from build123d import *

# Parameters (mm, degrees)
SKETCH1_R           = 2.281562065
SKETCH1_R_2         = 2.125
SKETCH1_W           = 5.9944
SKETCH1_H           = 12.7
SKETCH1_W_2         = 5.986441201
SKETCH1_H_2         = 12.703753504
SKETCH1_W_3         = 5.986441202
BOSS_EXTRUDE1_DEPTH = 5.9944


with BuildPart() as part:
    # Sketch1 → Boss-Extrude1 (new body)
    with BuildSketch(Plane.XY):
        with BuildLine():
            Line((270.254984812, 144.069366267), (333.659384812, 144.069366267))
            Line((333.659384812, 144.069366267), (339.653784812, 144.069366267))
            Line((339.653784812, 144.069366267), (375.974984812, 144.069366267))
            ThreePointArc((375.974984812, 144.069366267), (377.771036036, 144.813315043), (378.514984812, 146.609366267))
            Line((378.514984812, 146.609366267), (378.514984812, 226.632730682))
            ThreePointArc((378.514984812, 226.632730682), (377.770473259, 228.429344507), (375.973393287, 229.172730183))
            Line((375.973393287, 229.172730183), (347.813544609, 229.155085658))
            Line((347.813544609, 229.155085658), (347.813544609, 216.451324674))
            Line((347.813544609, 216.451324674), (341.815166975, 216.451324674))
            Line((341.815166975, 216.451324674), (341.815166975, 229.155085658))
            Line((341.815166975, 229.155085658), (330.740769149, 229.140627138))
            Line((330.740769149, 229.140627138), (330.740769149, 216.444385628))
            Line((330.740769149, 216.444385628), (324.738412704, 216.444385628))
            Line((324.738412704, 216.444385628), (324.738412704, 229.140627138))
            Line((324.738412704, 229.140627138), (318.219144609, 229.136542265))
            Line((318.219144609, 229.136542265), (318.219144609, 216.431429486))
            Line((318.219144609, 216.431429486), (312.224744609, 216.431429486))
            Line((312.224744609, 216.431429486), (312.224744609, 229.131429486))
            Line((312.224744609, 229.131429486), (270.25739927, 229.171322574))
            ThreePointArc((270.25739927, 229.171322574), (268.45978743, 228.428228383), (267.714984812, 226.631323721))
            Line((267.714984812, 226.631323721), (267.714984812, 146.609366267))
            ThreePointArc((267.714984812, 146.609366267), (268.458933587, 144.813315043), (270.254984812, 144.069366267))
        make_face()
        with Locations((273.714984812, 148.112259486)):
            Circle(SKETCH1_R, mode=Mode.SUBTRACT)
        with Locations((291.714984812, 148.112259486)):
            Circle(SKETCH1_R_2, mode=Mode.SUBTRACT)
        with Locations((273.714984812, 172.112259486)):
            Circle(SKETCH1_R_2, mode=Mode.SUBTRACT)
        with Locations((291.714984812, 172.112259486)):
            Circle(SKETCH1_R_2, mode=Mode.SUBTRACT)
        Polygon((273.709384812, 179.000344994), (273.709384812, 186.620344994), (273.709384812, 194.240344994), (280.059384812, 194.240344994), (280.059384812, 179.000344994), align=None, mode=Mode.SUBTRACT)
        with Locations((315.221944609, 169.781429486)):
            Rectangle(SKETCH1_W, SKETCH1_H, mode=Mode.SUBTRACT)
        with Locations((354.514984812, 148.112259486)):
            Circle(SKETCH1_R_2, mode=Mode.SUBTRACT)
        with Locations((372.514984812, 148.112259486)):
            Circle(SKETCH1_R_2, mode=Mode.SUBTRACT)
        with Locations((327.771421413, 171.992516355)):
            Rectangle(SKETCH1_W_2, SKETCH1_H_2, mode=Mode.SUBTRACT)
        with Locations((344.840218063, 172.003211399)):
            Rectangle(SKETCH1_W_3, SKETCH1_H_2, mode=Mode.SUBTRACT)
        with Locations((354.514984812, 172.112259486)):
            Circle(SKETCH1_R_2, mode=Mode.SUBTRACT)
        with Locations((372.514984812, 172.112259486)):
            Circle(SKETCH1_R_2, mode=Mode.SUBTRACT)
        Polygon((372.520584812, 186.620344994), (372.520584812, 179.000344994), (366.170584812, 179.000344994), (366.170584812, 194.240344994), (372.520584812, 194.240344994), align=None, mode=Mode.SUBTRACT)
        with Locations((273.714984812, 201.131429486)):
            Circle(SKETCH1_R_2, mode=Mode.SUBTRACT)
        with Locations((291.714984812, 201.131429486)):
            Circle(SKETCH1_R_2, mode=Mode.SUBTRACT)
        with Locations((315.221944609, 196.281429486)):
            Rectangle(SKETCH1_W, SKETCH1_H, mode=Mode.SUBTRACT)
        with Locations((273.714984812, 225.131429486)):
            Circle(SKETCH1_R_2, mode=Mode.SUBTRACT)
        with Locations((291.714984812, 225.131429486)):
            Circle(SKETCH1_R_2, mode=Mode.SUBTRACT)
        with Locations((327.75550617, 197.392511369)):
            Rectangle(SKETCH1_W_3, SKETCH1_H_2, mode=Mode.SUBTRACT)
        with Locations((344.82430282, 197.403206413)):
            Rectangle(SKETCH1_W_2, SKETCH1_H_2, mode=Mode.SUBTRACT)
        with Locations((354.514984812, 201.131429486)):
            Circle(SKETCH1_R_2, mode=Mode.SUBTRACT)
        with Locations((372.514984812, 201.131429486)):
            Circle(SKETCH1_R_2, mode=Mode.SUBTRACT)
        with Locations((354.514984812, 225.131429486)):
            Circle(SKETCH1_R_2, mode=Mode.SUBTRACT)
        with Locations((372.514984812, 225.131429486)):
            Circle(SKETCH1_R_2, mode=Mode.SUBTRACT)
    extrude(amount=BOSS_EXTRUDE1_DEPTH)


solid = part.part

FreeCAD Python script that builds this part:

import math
import FreeCAD as App
import Part
import Sketcher
from FreeCAD import Vector
Q = App.Units.Quantity


def add_polygon(sketch, points):
    """Adds a closed chain of lines whose ends are joined by coincident constraints."""
    first, n = sketch.GeometryCount, len(points)
    for a, b in zip(points, points[1:] + points[:1]):
        sketch.addGeometry(Part.LineSegment(App.Vector(*a, 0), App.Vector(*b, 0)), False)
    for i in range(n):
        sketch.addConstraint(Sketcher.Constraint("Coincident", first + i, 2, first + (i + 1) % n, 1))

doc = App.newDocument("Part")
body = doc.addObject("PartDesign::Body", "Body")

sketch1 = doc.addObject("Sketcher::SketchObject", "Sketch")
body.addObject(sketch1)
sketch1.AttachmentSupport = (doc.XY_Plane, [""])
sketch1.MapMode = "FlatFace"
sketch1.addGeometry(Part.LineSegment(Vector(270.254985, 144.069366, 0), Vector(375.974985, 144.069366, 0)), False)
sketch1.addGeometry(Part.ArcOfCircle(Part.Circle(Vector(375.974985, 146.609366, 0), Vector(0, 0, 1), 2.54), math.radians(-90), math.radians(0)), False)
sketch1.addGeometry(Part.LineSegment(Vector(378.514985, 146.609366, 0), Vector(378.514985, 226.632731, 0)), False)
sketch1.addGeometry(Part.ArcOfCircle(Part.Circle(Vector(375.974985, 226.632731, 0), Vector(0, 0, 1), 2.54), math.radians(0), math.radians(90.035901)), False)
sketch1.addGeometry(Part.LineSegment(Vector(375.973393, 229.17273, 0), Vector(347.813545, 229.155086, 0)), False)
sketch1.addGeometry(Part.LineSegment(Vector(347.813545, 229.155086, 0), Vector(347.813545, 216.451325, 0)), False)
sketch1.addGeometry(Part.LineSegment(Vector(347.813545, 216.451325, 0), Vector(341.815167, 216.451325, 0)), False)
sketch1.addGeometry(Part.LineSegment(Vector(341.815167, 216.451325, 0), Vector(341.815167, 229.155086, 0)), False)
sketch1.addGeometry(Part.LineSegment(Vector(341.815167, 229.155086, 0), Vector(330.740769, 229.140627, 0)), False)
sketch1.addGeometry(Part.LineSegment(Vector(330.740769, 229.140627, 0), Vector(330.740769, 216.444386, 0)), False)
sketch1.addGeometry(Part.LineSegment(Vector(330.740769, 216.444386, 0), Vector(324.738413, 216.444386, 0)), False)
sketch1.addGeometry(Part.LineSegment(Vector(324.738413, 216.444386, 0), Vector(324.738413, 229.140627, 0)), False)
sketch1.addGeometry(Part.LineSegment(Vector(324.738413, 229.140627, 0), Vector(318.219145, 229.136542, 0)), False)
sketch1.addGeometry(Part.LineSegment(Vector(318.219145, 229.136542, 0), Vector(318.219145, 216.431429, 0)), False)
sketch1.addGeometry(Part.LineSegment(Vector(318.219145, 216.431429, 0), Vector(312.224745, 216.431429, 0)), False)
sketch1.addGeometry(Part.LineSegment(Vector(312.224745, 216.431429, 0), Vector(312.224745, 229.131429, 0)), False)
sketch1.addGeometry(Part.LineSegment(Vector(312.224745, 229.131429, 0), Vector(270.257399, 229.171323, 0)), False)
sketch1.addGeometry(Part.ArcOfCircle(Part.Circle(Vector(270.254985, 226.631324, 0), Vector(0, 0, 1), 2.54), math.radians(89.945536), math.radians(180)), False)
sketch1.addGeometry(Part.LineSegment(Vector(267.714985, 226.631324, 0), Vector(267.714985, 146.609366, 0)), False)
sketch1.addGeometry(Part.ArcOfCircle(Part.Circle(Vector(270.254985, 146.609366, 0), Vector(0, 0, 1), 2.54), math.radians(180), math.radians(270)), False)
sketch1.addGeometry(Part.Circle(Vector(273.714985, 148.112259, 0), Vector(0, 0, 1), 2.281562), False)
sketch1.addGeometry(Part.Circle(Vector(291.714985, 148.112259, 0), Vector(0, 0, 1), 2.125), False)
sketch1.addGeometry(Part.Circle(Vector(273.714985, 172.112259, 0), Vector(0, 0, 1), 2.125), False)
sketch1.addGeometry(Part.Circle(Vector(291.714985, 172.112259, 0), Vector(0, 0, 1), 2.125), False)
add_polygon(sketch1, [(318.219145, 163.431429), (312.224745, 163.431429), (312.224745, 176.131429), (318.219145, 176.131429)])
sketch1.addGeometry(Part.Circle(Vector(354.514985, 148.112259, 0), Vector(0, 0, 1), 2.125), False)
sketch1.addGeometry(Part.Circle(Vector(372.514985, 148.112259, 0), Vector(0, 0, 1), 2.125), False)
add_polygon(sketch1, [(330.764642, 165.64064), (324.778201, 165.64064), (324.778201, 178.344393), (330.764642, 178.344393)])
add_polygon(sketch1, [(347.833439, 165.651335), (341.846997, 165.651335), (341.846997, 178.355088), (347.833439, 178.355088)])
sketch1.addGeometry(Part.Circle(Vector(354.514985, 172.112259, 0), Vector(0, 0, 1), 2.125), False)
sketch1.addGeometry(Part.Circle(Vector(372.514985, 172.112259, 0), Vector(0, 0, 1), 2.125), False)
add_polygon(sketch1, [(280.059385, 179.000345), (273.709385, 179.000345), (273.709385, 194.240345), (280.059385, 194.240345)])
sketch1.addGeometry(Part.Circle(Vector(273.714985, 201.131429, 0), Vector(0, 0, 1), 2.125), False)
sketch1.addGeometry(Part.Circle(Vector(291.714985, 201.131429, 0), Vector(0, 0, 1), 2.125), False)
add_polygon(sketch1, [(318.219145, 189.931429), (312.224745, 189.931429), (312.224745, 202.631429), (318.219145, 202.631429)])
sketch1.addGeometry(Part.Circle(Vector(273.714985, 225.131429, 0), Vector(0, 0, 1), 2.125), False)
sketch1.addGeometry(Part.Circle(Vector(291.714985, 225.131429, 0), Vector(0, 0, 1), 2.125), False)
add_polygon(sketch1, [(330.748727, 191.040635), (324.762286, 191.040635), (324.762286, 203.744388), (330.748727, 203.744388)])
add_polygon(sketch1, [(347.817523, 191.05133), (341.831082, 191.05133), (341.831082, 203.755083), (347.817523, 203.755083)])
add_polygon(sketch1, [(372.520585, 194.240345), (372.520585, 179.000345), (366.170585, 179.000345), (366.170585, 194.240345)])
sketch1.addGeometry(Part.Circle(Vector(354.514985, 201.131429, 0), Vector(0, 0, 1), 2.125), False)
sketch1.addGeometry(Part.Circle(Vector(372.514985, 201.131429, 0), Vector(0, 0, 1), 2.125), False)
sketch1.addGeometry(Part.Circle(Vector(354.514985, 225.131429, 0), Vector(0, 0, 1), 2.125), False)
sketch1.addGeometry(Part.Circle(Vector(372.514985, 225.131429, 0), Vector(0, 0, 1), 2.125), False)
sketch1.addConstraint([
    Sketcher.Constraint("Tangent", 0, 2, 1, 1),
    Sketcher.Constraint("Tangent", 1, 2, 2, 1),
    Sketcher.Constraint("Tangent", 2, 2, 3, 1),
    Sketcher.Constraint("Tangent", 3, 2, 4, 1),
    Sketcher.Constraint("Coincident", 4, 2, 5, 1),
    Sketcher.Constraint("Coincident", 5, 2, 6, 1),
    Sketcher.Constraint("Coincident", 6, 2, 7, 1),
    Sketcher.Constraint("Coincident", 7, 2, 8, 1),
    Sketcher.Constraint("Coincident", 8, 2, 9, 1),
    Sketcher.Constraint("Coincident", 9, 2, 10, 1),
    Sketcher.Constraint("Coincident", 10, 2, 11, 1),
    Sketcher.Constraint("Coincident", 11, 2, 12, 1),
    Sketcher.Constraint("Coincident", 12, 2, 13, 1),
    Sketcher.Constraint("Coincident", 13, 2, 14, 1),
    Sketcher.Constraint("Coincident", 14, 2, 15, 1),
    Sketcher.Constraint("Coincident", 15, 2, 16, 1),
    Sketcher.Constraint("Tangent", 16, 2, 17, 1),
    Sketcher.Constraint("Tangent", 17, 2, 18, 1),
    Sketcher.Constraint("Tangent", 18, 2, 19, 1),
    Sketcher.Constraint("Tangent", 19, 2, 0, 1),
    Sketcher.Constraint("Horizontal", 0),
    Sketcher.Constraint("Vertical", 2),
    Sketcher.Constraint("Vertical", 5),
    Sketcher.Constraint("Horizontal", 6),
    Sketcher.Constraint("Vertical", 7),
    Sketcher.Constraint("Vertical", 9),
    Sketcher.Constraint("Horizontal", 10),
    Sketcher.Constraint("Vertical", 11),
    Sketcher.Constraint("Vertical", 13),
    Sketcher.Constraint("Horizontal", 14),
    Sketcher.Constraint("Vertical", 15),
    Sketcher.Constraint("Vertical", 18),
    Sketcher.Constraint("Horizontal", 24),
    Sketcher.Constraint("Vertical", 25),
    Sketcher.Constraint("Horizontal", 26),
    Sketcher.Constraint("Vertical", 27),
    Sketcher.Constraint("Horizontal", 30),
    Sketcher.Constraint("Vertical", 31),
    Sketcher.Constraint("Horizontal", 32),
    Sketcher.Constraint("Vertical", 33),
    Sketcher.Constraint("Horizontal", 34),
    Sketcher.Constraint("Vertical", 35),
    Sketcher.Constraint("Horizontal", 36),
    Sketcher.Constraint("Vertical", 37),
    Sketcher.Constraint("Horizontal", 40),
    Sketcher.Constraint("Vertical", 41),
    Sketcher.Constraint("Horizontal", 42),
    Sketcher.Constraint("Vertical", 43),
    Sketcher.Constraint("Horizontal", 46),
    Sketcher.Constraint("Vertical", 47),
    Sketcher.Constraint("Horizontal", 48),
    Sketcher.Constraint("Vertical", 49),
    Sketcher.Constraint("Horizontal", 52),
    Sketcher.Constraint("Vertical", 53),
    Sketcher.Constraint("Horizontal", 54),
    Sketcher.Constraint("Vertical", 55),
    Sketcher.Constraint("Horizontal", 56),
    Sketcher.Constraint("Vertical", 57),
    Sketcher.Constraint("Horizontal", 58),
    Sketcher.Constraint("Vertical", 59),
    Sketcher.Constraint("Vertical", 60),
    Sketcher.Constraint("Horizontal", 61),
    Sketcher.Constraint("Vertical", 62),
    Sketcher.Constraint("Horizontal", 63),
    Sketcher.Constraint("Equal", 1, 3),
    Sketcher.Constraint("Equal", 3, 17),
    Sketcher.Constraint("Equal", 17, 19),
    Sketcher.Constraint("Equal", 21, 22),
    Sketcher.Constraint("Equal", 22, 23),
    Sketcher.Constraint("Equal", 23, 28),
    Sketcher.Constraint("Equal", 28, 29),
    Sketcher.Constraint("Equal", 29, 38),
    Sketcher.Constraint("Equal", 38, 39),
    Sketcher.Constraint("Equal", 39, 44),
    Sketcher.Constraint("Equal", 44, 45),
    Sketcher.Constraint("Equal", 45, 50),
    Sketcher.Constraint("Equal", 50, 51),
    Sketcher.Constraint("Equal", 51, 64),
    Sketcher.Constraint("Equal", 64, 65),
    Sketcher.Constraint("Equal", 65, 66),
    Sketcher.Constraint("Equal", 66, 67),
    Sketcher.Constraint("Parallel", 4, 12),
    Sketcher.Constraint("Horizontal", 20, 3, 21, 3),
    Sketcher.Constraint("Horizontal", 22, 3, 23, 3),
    Sketcher.Constraint("Horizontal", 21, 3, 28, 3),
    Sketcher.Constraint("Horizontal", 28, 3, 29, 3),
    Sketcher.Constraint("Horizontal", 23, 3, 38, 3),
    Sketcher.Constraint("Horizontal", 38, 3, 39, 3),
    Sketcher.Constraint("Horizontal", 44, 3, 45, 3),
    Sketcher.Constraint("Horizontal", 50, 3, 51, 3),
    Sketcher.Constraint("Horizontal", 45, 3, 64, 3),
    Sketcher.Constraint("Horizontal", 64, 3, 65, 3),
    Sketcher.Constraint("Horizontal", 51, 3, 66, 3),
    Sketcher.Constraint("Horizontal", 66, 3, 67, 3),
    Sketcher.Constraint("Horizontal", 4, 2, 7, 2),
    Sketcher.Constraint("Horizontal", 8, 2, 11, 2),
    Sketcher.Constraint("Horizontal", 43, 2, 60, 2),
    Sketcher.Constraint("Horizontal", 42, 2, 62, 2),
    Sketcher.Constraint("Vertical", 20, 3, 22, 3),
    Sketcher.Constraint("Vertical", 21, 3, 23, 3),
    Sketcher.Constraint("Vertical", 28, 3, 38, 3),
    Sketcher.Constraint("Vertical", 29, 3, 39, 3),
    Sketcher.Constraint("Vertical", 22, 3, 44, 3),
    Sketcher.Constraint("Vertical", 23, 3, 45, 3),
    Sketcher.Constraint("Vertical", 44, 3, 50, 3),
    Sketcher.Constraint("Vertical", 45, 3, 51, 3),
    Sketcher.Constraint("Vertical", 38, 3, 64, 3),
    Sketcher.Constraint("Vertical", 39, 3, 65, 3),
    Sketcher.Constraint("Vertical", 64, 3, 66, 3),
    Sketcher.Constraint("Vertical", 65, 3, 67, 3),
    Sketcher.Constraint("Vertical", 15, 2, 24, 2),
    Sketcher.Constraint("Vertical", 13, 2, 26, 2),
    Sketcher.Constraint("Vertical", 25, 2, 46, 2),
    Sketcher.Constraint("Vertical", 27, 2, 48, 2),
    Sketcher.Constraint("Equal", 32, 34),
    Sketcher.Constraint("Equal", 36, 52),
    Sketcher.Constraint("Equal", 54, 56),
    Sketcher.Constraint("Equal", 42, 61),
    Sketcher.Constraint("Equal", 15, 25),
    Sketcher.Constraint("Equal", 33, 35),
    Sketcher.Constraint("Equal", 27, 47),
    Sketcher.Constraint("Equal", 37, 53),
    Sketcher.Constraint("Equal", 55, 57),
    Sketcher.Constraint("Radius", 1, Q("0.1 in")),
    Sketcher.Constraint("DistanceY", 15, 1, 15, 2, Q("0.5 in")),
    Sketcher.Constraint("DistanceY", 41, 1, 41, 2, Q("0.6 in")),
    Sketcher.Constraint("DistanceX", 40, 2, 40, 1, Q("0.25 in")),
    Sketcher.Constraint("Diameter", 21, Q("4.25 mm")),
    Sketcher.Constraint("DistanceX", 14, 2, 14, 1, Q("0.236 in")),
    Sketcher.Constraint("Diameter", 20, Q("4.563124 mm")),
    Sketcher.Constraint("DistanceX", 0, 1, 0, 2, Q("105.72 mm")),
    Sketcher.Constraint("DistanceX", 30, 2, 30, 1, Q("5.986441 mm")),
    Sketcher.Constraint("DistanceY", 5, 2, 5, 1, Q("12.703761 mm")),
    Sketcher.Constraint("DistanceY", 9, 2, 9, 1, Q("12.696242 mm")),
    Sketcher.Constraint("DistanceX", -1, 1, 16, 2, Q("270.257399 mm")),
    Sketcher.Constraint("DistanceX", -1, 1, 30, 2, Q("324.778201 mm")),
    Sketcher.Constraint("Distance", 12, Q("6.519269 mm")),
    Sketcher.Constraint("DistanceX", 6, 2, 6, 1, Q("5.998378 mm")),
    Sketcher.Constraint("DistanceX", 10, 2, 10, 1, Q("6.002356 mm")),
    Sketcher.Constraint("DistanceY", 2, 1, 2, 2, Q("80.023364 mm")),
    Sketcher.Constraint("DistanceY", 13, 2, 13, 1, Q("12.705113 mm")),
    Sketcher.Constraint("DistanceY", 18, 2, 18, 1, Q("80.021957 mm")),
    Sketcher.Constraint("DistanceY", 31, 1, 31, 2, Q("12.703754 mm")),
    Sketcher.Constraint("DistanceY", -1, 1, 3, 3, Q("226.632731 mm")),
    Sketcher.Constraint("DistanceY", -1, 1, 20, 3, Q("148.112259 mm")),
    Sketcher.Constraint("DistanceY", -1, 1, 22, 3, Q("172.112259 mm")),
    Sketcher.Constraint("DistanceY", -1, 1, 44, 3, Q("201.131429 mm")),
    Sketcher.Constraint("DistanceY", -1, 1, 50, 3, Q("225.131429 mm")),
    Sketcher.Constraint("DistanceX", -1, 1, 8, 2, Q("330.740769 mm")),
    Sketcher.Constraint("DistanceY", -1, 1, 13, 2, Q("216.431429 mm")),
    Sketcher.Constraint("DistanceY", -1, 1, 24, 2, Q("163.431429 mm")),
    Sketcher.Constraint("DistanceY", -1, 1, 30, 2, Q("165.64064 mm")),
    Sketcher.Constraint("DistanceY", -1, 1, 35, 2, Q("178.355088 mm")),
    Sketcher.Constraint("DistanceX", -1, 1, 36, 2, Q("347.833439 mm")),
    Sketcher.Constraint("DistanceY", -1, 1, 46, 2, Q("189.931429 mm")),
    Sketcher.Constraint("DistanceY", -1, 1, 53, 2, Q("203.744388 mm")),
    Sketcher.Constraint("DistanceY", -1, 1, 56, 2, Q("191.05133 mm")),
    Sketcher.Constraint("Distance", 4, Q("28.159854 mm")),
    Sketcher.Constraint("Distance", 8, Q("11.074407 mm")),
    Sketcher.Constraint("DistanceX", -1, 1, 20, 3, Q("273.714985 mm")),
    Sketcher.Constraint("DistanceX", -1, 1, 21, 3, Q("291.714985 mm")),
    Sketcher.Constraint("DistanceX", -1, 1, 28, 3, Q("354.514985 mm")),
    Sketcher.Constraint("DistanceX", -1, 1, 29, 3, Q("372.514985 mm")),
    Sketcher.Constraint("DistanceX", -1, 1, 40, 2, Q("273.709385 mm")),
    Sketcher.Constraint("DistanceY", -1, 1, 40, 2, Q("179.000345 mm")),
    Sketcher.Constraint("DistanceX", -1, 1, 52, 2, Q("324.762286 mm")),
    Sketcher.Constraint("DistanceX", -1, 1, 56, 2, Q("341.831082 mm")),
    Sketcher.Constraint("DistanceX", -1, 1, 60, 2, Q("372.520585 mm")),
])
pad1 = doc.addObject("PartDesign::Pad", "Pad")
body.addObject(pad1)
pad1.Profile = sketch1
pad1.Length = Q("0.236 in")

doc.recompute()
